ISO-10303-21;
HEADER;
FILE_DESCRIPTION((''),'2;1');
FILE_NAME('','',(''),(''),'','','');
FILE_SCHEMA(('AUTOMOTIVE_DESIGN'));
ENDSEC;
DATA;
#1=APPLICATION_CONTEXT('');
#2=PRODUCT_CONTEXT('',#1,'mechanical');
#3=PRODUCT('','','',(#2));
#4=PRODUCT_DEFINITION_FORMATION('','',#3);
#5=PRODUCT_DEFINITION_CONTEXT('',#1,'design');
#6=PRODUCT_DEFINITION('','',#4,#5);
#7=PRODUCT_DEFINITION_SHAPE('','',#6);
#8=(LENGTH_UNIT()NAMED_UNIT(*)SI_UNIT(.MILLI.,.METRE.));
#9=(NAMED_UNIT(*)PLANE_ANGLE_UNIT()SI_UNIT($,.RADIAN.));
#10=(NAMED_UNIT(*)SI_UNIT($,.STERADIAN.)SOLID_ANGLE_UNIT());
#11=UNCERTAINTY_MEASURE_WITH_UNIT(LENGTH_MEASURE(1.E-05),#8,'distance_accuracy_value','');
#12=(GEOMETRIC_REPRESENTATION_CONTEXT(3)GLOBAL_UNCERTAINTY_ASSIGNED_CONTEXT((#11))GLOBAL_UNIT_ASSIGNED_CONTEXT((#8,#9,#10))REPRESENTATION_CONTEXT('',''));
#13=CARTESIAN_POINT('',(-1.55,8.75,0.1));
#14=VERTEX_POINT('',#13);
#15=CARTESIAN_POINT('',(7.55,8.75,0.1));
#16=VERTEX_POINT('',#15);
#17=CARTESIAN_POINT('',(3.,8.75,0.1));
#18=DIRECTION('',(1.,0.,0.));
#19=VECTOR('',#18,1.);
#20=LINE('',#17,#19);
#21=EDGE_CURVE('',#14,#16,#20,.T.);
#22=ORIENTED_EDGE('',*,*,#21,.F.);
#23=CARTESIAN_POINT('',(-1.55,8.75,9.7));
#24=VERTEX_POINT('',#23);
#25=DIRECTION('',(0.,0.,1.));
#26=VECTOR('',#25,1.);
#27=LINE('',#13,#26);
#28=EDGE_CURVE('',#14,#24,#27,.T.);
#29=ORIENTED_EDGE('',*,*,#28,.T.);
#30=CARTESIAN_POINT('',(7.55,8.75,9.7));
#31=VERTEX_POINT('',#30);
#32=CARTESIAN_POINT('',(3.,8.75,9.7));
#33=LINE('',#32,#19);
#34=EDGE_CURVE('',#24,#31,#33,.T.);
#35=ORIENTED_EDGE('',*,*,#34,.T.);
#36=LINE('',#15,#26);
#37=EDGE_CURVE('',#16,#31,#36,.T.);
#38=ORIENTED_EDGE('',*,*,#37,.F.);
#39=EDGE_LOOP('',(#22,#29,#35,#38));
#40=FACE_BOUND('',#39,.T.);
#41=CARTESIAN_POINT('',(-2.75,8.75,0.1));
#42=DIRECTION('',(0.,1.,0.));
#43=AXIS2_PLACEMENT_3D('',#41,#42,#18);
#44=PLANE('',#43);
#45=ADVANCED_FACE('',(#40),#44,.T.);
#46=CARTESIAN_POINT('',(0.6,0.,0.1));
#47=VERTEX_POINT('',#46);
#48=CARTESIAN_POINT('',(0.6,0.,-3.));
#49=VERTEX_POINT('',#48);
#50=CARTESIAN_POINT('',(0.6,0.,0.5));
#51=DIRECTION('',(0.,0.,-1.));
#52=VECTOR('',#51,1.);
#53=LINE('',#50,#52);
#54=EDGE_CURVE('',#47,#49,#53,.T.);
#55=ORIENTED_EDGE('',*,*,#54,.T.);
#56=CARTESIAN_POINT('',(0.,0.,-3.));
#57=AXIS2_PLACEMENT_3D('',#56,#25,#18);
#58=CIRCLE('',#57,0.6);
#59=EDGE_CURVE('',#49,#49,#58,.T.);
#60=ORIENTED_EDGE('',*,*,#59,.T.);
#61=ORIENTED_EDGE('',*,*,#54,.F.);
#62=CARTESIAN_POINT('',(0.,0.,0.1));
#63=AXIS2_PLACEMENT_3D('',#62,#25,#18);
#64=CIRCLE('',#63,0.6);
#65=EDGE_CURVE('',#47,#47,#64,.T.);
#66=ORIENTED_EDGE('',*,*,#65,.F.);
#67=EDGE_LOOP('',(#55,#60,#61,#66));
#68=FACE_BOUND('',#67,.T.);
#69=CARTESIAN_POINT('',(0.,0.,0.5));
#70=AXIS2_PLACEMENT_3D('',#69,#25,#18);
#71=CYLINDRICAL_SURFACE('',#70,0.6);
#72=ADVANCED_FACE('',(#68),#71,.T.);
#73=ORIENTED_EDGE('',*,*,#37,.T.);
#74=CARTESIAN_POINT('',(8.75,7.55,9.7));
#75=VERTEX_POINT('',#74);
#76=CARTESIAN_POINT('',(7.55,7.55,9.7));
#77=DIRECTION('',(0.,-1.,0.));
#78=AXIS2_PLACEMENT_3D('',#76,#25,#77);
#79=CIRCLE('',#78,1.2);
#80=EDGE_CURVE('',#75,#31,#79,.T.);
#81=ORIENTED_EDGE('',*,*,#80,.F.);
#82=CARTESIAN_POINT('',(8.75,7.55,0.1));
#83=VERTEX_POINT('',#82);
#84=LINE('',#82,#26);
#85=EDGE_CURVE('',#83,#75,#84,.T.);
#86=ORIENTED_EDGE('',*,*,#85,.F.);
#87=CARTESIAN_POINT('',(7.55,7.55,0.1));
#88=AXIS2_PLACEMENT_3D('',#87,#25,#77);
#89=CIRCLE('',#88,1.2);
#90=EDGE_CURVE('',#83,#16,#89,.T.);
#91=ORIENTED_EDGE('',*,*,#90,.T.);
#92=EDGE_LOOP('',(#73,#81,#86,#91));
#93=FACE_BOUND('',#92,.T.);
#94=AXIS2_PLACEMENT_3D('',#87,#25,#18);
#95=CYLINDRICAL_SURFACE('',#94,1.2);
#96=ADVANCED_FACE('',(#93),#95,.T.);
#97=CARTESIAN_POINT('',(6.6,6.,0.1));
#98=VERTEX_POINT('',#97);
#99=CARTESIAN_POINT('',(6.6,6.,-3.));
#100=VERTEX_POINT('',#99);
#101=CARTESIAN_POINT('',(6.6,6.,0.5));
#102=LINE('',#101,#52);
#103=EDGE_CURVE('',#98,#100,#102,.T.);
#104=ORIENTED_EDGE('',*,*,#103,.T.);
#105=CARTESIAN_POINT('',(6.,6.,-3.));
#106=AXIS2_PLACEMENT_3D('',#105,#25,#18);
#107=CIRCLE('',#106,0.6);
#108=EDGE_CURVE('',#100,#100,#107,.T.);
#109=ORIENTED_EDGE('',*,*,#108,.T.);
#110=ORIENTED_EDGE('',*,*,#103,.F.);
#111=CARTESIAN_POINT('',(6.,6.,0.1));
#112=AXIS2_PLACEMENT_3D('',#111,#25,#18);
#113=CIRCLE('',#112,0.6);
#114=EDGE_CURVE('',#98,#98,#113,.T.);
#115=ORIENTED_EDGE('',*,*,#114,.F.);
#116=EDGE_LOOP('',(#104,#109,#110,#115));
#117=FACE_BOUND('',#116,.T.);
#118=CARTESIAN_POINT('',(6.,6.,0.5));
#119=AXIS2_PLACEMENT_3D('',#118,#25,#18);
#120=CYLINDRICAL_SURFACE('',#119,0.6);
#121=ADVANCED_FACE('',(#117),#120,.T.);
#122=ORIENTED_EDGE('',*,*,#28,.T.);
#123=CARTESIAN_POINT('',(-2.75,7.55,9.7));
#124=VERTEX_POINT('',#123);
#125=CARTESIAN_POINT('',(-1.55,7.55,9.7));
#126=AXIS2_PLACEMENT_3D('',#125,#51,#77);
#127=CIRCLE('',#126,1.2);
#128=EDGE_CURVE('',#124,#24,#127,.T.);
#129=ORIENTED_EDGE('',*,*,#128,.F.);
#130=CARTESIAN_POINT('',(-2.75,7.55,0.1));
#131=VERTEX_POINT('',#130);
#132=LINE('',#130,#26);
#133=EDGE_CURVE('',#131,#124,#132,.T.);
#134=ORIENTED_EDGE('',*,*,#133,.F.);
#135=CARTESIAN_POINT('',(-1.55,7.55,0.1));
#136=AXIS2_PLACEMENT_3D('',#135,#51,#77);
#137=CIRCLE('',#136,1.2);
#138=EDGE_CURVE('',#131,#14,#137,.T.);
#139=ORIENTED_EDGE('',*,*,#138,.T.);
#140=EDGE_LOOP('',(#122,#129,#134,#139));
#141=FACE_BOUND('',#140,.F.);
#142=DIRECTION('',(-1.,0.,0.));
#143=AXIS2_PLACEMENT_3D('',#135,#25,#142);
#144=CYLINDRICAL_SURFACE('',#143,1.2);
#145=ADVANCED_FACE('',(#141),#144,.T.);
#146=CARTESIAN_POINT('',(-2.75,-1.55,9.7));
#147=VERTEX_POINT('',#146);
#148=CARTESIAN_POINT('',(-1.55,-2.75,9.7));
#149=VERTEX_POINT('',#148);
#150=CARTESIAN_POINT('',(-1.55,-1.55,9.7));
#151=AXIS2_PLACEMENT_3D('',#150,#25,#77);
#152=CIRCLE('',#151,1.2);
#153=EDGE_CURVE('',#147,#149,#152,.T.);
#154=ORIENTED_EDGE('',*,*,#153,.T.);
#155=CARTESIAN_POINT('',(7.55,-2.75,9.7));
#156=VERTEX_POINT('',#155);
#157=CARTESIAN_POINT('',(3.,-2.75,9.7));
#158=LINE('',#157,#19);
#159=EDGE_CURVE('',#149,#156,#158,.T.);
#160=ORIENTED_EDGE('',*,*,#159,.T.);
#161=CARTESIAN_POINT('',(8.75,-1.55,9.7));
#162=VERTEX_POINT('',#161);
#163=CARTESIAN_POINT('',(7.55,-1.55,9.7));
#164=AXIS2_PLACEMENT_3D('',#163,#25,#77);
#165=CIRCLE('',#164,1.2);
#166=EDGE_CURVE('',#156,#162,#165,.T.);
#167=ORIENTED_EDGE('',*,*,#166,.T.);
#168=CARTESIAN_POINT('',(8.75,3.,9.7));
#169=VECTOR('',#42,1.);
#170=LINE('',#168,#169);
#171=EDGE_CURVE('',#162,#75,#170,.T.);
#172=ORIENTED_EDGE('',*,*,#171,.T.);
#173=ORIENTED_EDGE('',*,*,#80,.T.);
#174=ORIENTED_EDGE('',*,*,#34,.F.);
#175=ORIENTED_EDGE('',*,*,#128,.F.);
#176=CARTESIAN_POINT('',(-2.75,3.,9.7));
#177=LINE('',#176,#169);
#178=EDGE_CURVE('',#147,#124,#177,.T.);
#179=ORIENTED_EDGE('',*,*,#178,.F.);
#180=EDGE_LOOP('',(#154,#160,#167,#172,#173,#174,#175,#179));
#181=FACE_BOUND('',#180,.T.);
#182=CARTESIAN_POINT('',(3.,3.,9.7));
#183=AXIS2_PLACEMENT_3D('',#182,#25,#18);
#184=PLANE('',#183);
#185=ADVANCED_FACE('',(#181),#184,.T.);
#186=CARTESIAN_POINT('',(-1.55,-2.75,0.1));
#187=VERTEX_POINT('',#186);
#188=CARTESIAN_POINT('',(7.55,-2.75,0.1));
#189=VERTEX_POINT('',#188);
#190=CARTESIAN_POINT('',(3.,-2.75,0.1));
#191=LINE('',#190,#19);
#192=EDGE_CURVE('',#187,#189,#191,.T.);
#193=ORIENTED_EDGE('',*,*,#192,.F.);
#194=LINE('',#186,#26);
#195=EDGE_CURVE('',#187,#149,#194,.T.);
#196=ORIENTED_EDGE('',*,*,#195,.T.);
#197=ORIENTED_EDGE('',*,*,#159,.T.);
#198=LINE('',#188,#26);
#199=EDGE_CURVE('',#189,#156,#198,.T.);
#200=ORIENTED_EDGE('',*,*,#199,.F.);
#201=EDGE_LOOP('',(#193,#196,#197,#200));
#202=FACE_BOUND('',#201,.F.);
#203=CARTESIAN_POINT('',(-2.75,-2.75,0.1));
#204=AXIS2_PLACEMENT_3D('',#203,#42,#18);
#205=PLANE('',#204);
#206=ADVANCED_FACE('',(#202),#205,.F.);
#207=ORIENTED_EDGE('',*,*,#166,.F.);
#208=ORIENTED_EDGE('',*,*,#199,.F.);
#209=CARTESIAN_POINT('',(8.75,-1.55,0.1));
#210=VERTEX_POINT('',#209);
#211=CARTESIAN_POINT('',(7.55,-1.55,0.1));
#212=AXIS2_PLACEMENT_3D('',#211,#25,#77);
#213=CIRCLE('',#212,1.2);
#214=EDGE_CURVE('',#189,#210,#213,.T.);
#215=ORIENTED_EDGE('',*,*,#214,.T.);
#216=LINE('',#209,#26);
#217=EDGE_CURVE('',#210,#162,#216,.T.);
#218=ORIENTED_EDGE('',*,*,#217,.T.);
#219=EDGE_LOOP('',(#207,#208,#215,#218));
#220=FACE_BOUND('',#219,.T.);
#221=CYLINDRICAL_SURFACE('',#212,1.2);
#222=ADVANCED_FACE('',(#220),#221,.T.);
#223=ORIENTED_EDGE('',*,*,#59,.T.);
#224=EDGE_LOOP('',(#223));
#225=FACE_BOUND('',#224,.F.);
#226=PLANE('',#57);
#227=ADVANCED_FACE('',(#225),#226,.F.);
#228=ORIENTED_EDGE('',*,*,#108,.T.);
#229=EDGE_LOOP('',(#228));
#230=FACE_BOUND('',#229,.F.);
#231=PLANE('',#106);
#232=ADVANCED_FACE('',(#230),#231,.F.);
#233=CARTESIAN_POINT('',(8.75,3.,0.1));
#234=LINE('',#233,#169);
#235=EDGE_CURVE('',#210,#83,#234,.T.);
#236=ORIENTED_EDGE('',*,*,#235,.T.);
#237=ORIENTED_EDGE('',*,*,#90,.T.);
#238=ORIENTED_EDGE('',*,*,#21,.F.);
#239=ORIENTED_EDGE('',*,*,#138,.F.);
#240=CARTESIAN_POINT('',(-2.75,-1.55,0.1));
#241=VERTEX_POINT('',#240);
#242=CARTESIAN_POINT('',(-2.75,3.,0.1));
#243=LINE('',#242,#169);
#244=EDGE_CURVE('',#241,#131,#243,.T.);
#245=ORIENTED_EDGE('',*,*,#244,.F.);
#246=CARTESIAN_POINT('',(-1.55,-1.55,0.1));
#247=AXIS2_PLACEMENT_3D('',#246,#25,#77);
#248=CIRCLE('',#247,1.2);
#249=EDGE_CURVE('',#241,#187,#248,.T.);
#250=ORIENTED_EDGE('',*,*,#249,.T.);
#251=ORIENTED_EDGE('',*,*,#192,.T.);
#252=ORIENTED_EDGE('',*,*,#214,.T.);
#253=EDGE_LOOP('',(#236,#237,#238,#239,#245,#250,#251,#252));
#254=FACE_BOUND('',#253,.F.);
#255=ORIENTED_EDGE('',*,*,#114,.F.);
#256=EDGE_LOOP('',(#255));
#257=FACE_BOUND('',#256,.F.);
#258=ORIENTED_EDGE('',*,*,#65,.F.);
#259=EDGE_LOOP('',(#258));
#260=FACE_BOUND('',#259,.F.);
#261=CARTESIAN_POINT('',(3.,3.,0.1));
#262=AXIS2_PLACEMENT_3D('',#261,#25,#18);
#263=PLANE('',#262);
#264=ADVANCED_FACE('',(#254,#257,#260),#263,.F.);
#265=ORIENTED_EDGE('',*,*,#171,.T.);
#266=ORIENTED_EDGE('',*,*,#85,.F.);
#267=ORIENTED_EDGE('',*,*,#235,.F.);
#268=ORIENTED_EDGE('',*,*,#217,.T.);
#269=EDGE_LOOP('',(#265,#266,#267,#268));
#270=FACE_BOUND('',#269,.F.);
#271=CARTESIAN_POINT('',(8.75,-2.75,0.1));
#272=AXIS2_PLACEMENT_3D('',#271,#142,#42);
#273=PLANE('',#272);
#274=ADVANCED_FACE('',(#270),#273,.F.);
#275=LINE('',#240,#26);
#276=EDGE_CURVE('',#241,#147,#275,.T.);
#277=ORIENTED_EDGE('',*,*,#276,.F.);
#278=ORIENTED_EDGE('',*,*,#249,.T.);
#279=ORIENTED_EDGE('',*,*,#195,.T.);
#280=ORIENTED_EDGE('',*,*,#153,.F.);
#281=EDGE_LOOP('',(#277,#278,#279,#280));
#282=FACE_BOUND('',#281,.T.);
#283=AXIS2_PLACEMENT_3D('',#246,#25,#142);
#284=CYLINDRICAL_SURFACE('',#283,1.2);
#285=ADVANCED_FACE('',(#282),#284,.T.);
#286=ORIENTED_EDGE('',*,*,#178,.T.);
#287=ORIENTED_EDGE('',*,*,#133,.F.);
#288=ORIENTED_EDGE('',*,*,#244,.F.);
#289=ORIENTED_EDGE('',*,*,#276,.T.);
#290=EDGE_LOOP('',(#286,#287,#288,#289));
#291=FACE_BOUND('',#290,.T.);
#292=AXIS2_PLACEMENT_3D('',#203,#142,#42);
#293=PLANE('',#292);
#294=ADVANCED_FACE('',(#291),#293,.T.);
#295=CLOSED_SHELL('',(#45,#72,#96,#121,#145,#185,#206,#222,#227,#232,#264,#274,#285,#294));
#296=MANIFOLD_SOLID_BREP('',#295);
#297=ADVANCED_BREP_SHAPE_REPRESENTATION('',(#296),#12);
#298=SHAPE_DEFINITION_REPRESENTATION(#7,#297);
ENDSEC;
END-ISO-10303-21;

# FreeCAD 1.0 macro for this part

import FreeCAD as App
import Part
import Sketcher
from FreeCAD import Vector
Q = App.Units.Quantity


def edges_at(feature, points):
    """Names of the edges that pass closest to the given points."""
    edges = feature.Shape.Edges
    near = lambda p: min(range(len(edges)), key=lambda i: edges[i].distToShape(Part.Vertex(*p))[0])
    return sorted({f"Edge{near(p) + 1}" for p in points})


def add_polygon(sketch, points):
    """Adds a closed chain of lines whose ends are joined by coincident constraints."""
    first, n = sketch.GeometryCount, len(points)
    for a, b in zip(points, points[1:] + points[:1]):
        sketch.addGeometry(Part.LineSegment(App.Vector(*a, 0), App.Vector(*b, 0)), False)
    for i in range(n):
        sketch.addConstraint(Sketcher.Constraint("Coincident", first + i, 2, first + (i + 1) % n, 1))

doc = App.newDocument("Part")
body = doc.addObject("PartDesign::Body", "Body")
body.AllowCompound = True

sketch1 = body.newObject("Sketcher::SketchObject", "Sketch")
sketch1.AttachmentSupport = (doc.getObject("XY_Plane"), [""])
sketch1.MapMode = "FlatFace"
sketch1.AttachmentOffset = App.Placement(Vector(0, 0, 0.5), App.Rotation())
sketch1.addGeometry([
    Part.Circle(Vector(0, 0, 0), Vector(0, 0, 1), 0.6),
    Part.Circle(Vector(6, 6, 0), Vector(0, 0, 1), 0.6),
], False)
sketch1.addConstraint([
    Sketcher.Constraint("Coincident", 0, 3, -1, 1),
    Sketcher.Constraint("Equal", 0, 1),
    Sketcher.Constraint("Diameter", 0, Q("1.2 mm")),
    Sketcher.Constraint("DistanceX", -1, 1, 1, 3, Q("6 mm")),
    Sketcher.Constraint("DistanceY", -1, 1, 1, 3, Q("6 mm")),
])
pad1 = body.newObject("PartDesign::Pad", "Pad")
pad1.Profile = sketch1
pad1.Length = 3.5
pad1.Reversed = True
body2 = doc.addObject("PartDesign::Body", "Body001")

sketch2 = body2.newObject("Sketcher::SketchObject", "Sketch001")
sketch2.AttachmentSupport = (doc.getObject("XY_Plane001"), [""])
sketch2.MapMode = "FlatFace"
sketch2.AttachmentOffset = App.Placement(Vector(0, 0, 0.1), App.Rotation())
add_polygon(sketch2, [(-2.75, 8.75), (-2.75, -2.75), (8.75, -2.75), (8.75, 8.75)])
sketch2.addConstraint([
    Sketcher.Constraint("Vertical", 0),
    Sketcher.Constraint("Horizontal", 1),
    Sketcher.Constraint("Vertical", 2),
    Sketcher.Constraint("Horizontal", 3),
    Sketcher.Constraint("Equal", 3, 0),
    Sketcher.Constraint("DistanceX", 1, 1, 1, 2, Q("11.5 mm")),
    Sketcher.Constraint("DistanceX", 0, 2, -1, 1, Q("2.75 mm")),
    Sketcher.Constraint("DistanceY", 0, 2, -1, 1, Q("2.75 mm")),
])
pad2 = body2.newObject("PartDesign::Pad", "Pad001")
pad2.Profile = sketch2
pad2.Length = 9.6
doc.recompute()

fillet = body2.newObject("PartDesign::Fillet", "Fillet")
fillet.Base = (pad2, edges_at(pad2, [
    (8.75, -2.75, 4.9),
    (8.75, 8.75, 4.9),
    (-2.75, -2.75, 4.9),
    (-2.75, 8.75, 4.9),
]))
fillet.Radius = 1.2
doc.recompute()

boolean = body2.newObject("PartDesign::Boolean", "Boolean")
boolean.Type = "Fuse"
boolean.addObjects([body])

doc.recompute()
